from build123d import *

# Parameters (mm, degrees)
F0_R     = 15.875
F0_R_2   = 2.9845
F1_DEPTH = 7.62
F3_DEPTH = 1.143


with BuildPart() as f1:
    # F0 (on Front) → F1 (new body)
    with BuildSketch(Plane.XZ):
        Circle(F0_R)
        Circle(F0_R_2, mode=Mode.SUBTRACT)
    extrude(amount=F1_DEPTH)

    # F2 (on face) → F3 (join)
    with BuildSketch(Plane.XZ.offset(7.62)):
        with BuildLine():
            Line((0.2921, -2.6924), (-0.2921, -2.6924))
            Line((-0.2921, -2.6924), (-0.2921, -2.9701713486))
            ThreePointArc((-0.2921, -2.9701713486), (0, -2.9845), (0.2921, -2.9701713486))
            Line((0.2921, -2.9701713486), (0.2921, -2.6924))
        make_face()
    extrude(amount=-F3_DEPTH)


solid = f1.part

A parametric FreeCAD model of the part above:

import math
import FreeCAD as App
import Part
import Sketcher
from FreeCAD import Vector
Q = App.Units.Quantity

doc = App.newDocument("Part")
params = doc.addObject("Spreadsheet::Sheet", "Params")
for row, (alias, value) in enumerate([
    ("sketch1_diameter", "1.25 in"),
    ("sketch1_diameter2", "0.235 in"),
    ("pad1_length", "0.3 in"),
    ("sketch2_width", "0.023 in"),
    ("pad2_length", "0.045 in"),
], start=1):
    params.set(f"A{row}", alias)
    params.set(f"B{row}", "=" + value)
    params.setAlias(f"B{row}", alias)

body = doc.addObject("PartDesign::Body", "Body")

# Sketch on XZ plane
sketch1 = body.newObject("Sketcher::SketchObject", "Sketch")
sketch1.AttachmentSupport = (doc.getObject("XZ_Plane"), [""])
sketch1.MapMode = "FlatFace"
sketch1.addGeometry(Part.Circle(Vector(0, 0, 0), Vector(0, 0, 1), 15.9), False)
sketch1.addGeometry(Part.Circle(Vector(0, 0, 0), Vector(0, 0, 1), 3), False)
sketch1.addConstraint(Sketcher.Constraint("Coincident", 0, 3, -1, 1))
sketch1.addConstraint(Sketcher.Constraint("Coincident", 1, 3, -1, 1))
sketch1.addConstraint(Sketcher.Constraint("Diameter", 0, Q("1.25 in")))
sketch1.addConstraint(Sketcher.Constraint("Diameter", 1, Q("0.235 in")))
sketch1.setExpression("Constraints[2]", "Params.sketch1_diameter")
sketch1.setExpression("Constraints[3]", "Params.sketch1_diameter2")
pad1 = body.newObject("PartDesign::Pad", "Pad")
pad1.Profile = sketch1
pad1.setExpression("Length", "Params.pad1_length")

# Sketch on XZ plane
sketch2 = body.newObject("Sketcher::SketchObject", "Sketch001")
sketch2.AttachmentSupport = (doc.getObject("XZ_Plane"), [""])
sketch2.MapMode = "FlatFace"
sketch2.AttachmentOffset = App.Placement(Vector(0, 0, 0.3 * 25.4), App.Rotation())
sketch2.addGeometry(Part.LineSegment(Vector(0.29, -2.69, 0), Vector(-0.29, -2.69, 0)), False)
sketch2.addGeometry(Part.LineSegment(Vector(-0.29, -2.69, 0), Vector(-0.29, -2.97, 0)), False)
sketch2.addGeometry(Part.ArcOfCircle(Part.Circle(Vector(0, 0, 0), Vector(0, 0, 1), 2.98), math.radians(-95.62), math.radians(-84.38)), False)
sketch2.addGeometry(Part.LineSegment(Vector(0.29, -2.97, 0), Vector(0.29, -2.69, 0)), False)
sketch2.addConstraint(Sketcher.Constraint("Coincident", 0, 2, 1, 1))
sketch2.addConstraint(Sketcher.Constraint("Coincident", 1, 2, 2, 1))
sketch2.addConstraint(Sketcher.Constraint("Coincident", 2, 2, 3, 1))
sketch2.addConstraint(Sketcher.Constraint("Coincident", 3, 2, 0, 1))
sketch2.addConstraint(Sketcher.Constraint("Horizontal", 0))
sketch2.addConstraint(Sketcher.Constraint("Vertical", 1))
sketch2.addConstraint(Sketcher.Constraint("Vertical", 3))
sketch2.addConstraint(Sketcher.Constraint("Coincident", 2, 3, -1, 1))
sketch2.addConstraint(Sketcher.Constraint("Horizontal", 1, 2, 2, 2))
sketch2.addConstraint(Sketcher.Constraint("Radius", 2, Q("0.1175 in")))
sketch2.addConstraint(Sketcher.Constraint("DistanceX", 0, 2, 0, 1, Q("0.023 in")))
sketch2.addConstraint(Sketcher.Constraint("DistanceY", 0, 2, -1, 1, Q("0.106 in")))
sketch2.setExpression("Constraints[10]", "Params.sketch2_width")
pad2 = body.newObject("PartDesign::Pad", "Pad001")
pad2.Profile = sketch2
pad2.setExpression("Length", "Params.pad2_length")
pad2.Reversed = True

doc.recompute()
